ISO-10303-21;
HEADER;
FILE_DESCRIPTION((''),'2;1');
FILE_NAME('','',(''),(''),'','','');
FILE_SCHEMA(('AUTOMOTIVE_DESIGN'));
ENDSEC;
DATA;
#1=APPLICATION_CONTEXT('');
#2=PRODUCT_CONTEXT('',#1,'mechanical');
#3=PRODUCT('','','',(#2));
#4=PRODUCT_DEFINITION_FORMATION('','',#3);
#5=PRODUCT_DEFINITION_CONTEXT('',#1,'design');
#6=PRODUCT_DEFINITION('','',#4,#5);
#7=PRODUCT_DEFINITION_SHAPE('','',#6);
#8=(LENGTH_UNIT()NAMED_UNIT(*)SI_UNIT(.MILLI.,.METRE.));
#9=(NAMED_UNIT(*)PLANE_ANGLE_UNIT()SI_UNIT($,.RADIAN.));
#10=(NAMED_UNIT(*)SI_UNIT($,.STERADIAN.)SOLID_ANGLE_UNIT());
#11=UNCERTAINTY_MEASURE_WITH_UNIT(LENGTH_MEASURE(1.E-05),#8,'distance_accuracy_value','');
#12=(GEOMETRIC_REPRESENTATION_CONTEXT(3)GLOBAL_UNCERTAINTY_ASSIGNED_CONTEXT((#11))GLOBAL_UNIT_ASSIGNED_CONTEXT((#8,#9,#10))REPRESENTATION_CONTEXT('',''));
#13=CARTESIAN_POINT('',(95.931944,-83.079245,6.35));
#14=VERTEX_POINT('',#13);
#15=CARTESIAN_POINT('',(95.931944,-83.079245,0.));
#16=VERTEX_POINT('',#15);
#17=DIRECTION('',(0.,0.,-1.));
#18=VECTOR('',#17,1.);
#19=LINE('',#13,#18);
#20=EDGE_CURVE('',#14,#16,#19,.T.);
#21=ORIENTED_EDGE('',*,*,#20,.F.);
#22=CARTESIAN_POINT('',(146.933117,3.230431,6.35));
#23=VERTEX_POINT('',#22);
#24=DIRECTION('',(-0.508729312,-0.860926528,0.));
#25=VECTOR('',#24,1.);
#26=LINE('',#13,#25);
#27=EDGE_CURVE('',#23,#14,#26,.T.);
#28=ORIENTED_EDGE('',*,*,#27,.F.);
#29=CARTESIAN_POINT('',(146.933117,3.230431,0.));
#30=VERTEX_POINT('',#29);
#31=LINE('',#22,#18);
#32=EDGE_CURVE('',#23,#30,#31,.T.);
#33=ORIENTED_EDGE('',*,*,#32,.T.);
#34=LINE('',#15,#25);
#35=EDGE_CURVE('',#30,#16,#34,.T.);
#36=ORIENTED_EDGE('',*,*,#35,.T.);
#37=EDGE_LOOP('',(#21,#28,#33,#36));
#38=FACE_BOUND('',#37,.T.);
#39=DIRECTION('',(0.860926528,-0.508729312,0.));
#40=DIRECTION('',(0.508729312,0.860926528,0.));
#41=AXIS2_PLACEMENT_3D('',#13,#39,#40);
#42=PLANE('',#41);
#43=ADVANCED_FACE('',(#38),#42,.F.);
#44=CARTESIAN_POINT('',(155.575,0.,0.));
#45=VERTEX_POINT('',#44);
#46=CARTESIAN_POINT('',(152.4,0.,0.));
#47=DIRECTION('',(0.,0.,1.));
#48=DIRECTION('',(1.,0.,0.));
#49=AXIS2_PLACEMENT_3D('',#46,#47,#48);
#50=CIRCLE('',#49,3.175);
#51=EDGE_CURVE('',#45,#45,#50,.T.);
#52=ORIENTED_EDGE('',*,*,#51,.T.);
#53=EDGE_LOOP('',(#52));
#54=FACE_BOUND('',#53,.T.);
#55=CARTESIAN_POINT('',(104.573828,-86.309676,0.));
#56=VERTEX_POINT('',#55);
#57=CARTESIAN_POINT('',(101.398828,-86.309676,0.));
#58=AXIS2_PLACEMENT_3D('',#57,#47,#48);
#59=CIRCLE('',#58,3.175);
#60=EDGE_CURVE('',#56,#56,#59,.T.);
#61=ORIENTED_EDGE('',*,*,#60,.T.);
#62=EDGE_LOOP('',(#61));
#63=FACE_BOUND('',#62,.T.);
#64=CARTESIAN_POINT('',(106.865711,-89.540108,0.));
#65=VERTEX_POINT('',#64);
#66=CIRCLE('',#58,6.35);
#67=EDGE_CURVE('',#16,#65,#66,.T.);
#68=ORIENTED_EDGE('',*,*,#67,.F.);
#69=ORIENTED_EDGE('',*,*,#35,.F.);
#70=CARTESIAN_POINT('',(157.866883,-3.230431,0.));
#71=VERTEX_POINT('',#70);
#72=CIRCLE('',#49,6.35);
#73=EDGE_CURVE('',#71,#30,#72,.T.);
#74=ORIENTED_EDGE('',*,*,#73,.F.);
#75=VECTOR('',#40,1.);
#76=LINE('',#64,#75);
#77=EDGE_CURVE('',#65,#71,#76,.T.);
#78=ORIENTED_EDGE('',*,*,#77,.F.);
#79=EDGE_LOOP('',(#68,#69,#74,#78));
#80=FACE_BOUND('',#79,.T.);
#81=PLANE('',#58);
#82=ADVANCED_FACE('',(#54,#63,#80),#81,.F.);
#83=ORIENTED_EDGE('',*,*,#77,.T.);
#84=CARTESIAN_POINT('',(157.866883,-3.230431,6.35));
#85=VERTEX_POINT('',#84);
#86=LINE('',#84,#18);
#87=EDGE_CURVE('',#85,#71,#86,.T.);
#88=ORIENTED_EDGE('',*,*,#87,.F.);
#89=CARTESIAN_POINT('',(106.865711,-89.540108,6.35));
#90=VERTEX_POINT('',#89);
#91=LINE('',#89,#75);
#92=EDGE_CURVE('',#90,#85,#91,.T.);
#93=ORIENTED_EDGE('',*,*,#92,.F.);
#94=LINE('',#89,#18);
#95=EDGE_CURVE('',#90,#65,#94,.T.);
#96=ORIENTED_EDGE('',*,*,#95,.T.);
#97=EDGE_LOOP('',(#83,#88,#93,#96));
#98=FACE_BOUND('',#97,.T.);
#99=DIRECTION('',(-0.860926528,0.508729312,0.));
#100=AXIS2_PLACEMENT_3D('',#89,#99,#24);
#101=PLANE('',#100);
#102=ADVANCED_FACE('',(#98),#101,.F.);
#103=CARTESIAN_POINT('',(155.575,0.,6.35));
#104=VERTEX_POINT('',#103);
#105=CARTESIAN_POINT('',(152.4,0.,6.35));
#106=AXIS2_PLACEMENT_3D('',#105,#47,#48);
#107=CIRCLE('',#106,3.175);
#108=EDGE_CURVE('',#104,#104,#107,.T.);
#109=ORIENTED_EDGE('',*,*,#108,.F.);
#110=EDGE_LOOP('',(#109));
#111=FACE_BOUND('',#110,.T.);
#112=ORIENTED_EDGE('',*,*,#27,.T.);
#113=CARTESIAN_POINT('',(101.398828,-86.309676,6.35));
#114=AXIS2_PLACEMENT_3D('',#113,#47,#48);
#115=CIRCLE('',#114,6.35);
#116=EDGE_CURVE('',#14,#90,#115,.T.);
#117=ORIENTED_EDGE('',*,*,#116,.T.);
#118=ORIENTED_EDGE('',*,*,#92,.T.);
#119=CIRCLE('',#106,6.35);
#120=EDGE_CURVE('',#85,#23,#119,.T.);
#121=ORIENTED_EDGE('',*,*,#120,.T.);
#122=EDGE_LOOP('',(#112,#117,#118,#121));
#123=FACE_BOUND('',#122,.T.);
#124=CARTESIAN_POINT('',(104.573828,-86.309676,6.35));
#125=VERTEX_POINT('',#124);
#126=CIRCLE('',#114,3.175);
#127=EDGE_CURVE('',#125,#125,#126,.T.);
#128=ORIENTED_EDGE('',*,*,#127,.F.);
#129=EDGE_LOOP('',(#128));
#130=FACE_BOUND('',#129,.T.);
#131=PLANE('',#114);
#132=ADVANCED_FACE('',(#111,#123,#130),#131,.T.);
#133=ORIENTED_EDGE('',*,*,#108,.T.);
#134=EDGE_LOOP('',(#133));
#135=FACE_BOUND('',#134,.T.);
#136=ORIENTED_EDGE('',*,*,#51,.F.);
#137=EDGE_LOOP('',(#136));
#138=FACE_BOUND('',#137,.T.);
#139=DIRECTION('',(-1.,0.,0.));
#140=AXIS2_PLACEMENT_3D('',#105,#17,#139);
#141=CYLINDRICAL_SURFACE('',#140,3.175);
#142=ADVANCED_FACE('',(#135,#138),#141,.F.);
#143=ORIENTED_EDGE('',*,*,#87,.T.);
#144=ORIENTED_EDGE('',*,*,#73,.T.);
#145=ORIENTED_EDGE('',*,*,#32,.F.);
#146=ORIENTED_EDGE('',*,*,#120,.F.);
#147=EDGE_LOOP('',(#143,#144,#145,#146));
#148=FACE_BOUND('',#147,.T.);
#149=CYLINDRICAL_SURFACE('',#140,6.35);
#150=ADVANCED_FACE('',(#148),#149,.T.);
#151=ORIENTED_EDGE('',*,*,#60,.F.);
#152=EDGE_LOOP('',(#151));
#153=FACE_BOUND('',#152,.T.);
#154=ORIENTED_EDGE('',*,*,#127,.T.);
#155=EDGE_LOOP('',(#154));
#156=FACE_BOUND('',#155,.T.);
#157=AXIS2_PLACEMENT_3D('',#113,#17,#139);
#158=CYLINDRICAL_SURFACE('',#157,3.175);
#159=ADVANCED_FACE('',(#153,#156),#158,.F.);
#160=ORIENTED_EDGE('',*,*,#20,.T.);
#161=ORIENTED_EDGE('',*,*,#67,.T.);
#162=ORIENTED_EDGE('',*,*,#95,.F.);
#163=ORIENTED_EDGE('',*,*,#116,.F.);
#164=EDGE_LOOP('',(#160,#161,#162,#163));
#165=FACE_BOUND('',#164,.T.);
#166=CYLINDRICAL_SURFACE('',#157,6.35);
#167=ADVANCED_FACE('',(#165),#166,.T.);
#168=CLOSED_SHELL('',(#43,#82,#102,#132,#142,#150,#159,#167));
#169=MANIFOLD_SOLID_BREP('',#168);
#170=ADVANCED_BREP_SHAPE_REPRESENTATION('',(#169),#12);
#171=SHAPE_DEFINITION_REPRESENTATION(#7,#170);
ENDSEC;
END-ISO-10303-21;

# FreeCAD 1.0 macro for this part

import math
import FreeCAD as App
import Part
import Sketcher
Q = App.Units.Quantity

doc = App.newDocument("Part")
body = doc.addObject("PartDesign::Body", "Body")

# Sketch on XY plane
sketch1 = doc.addObject("Sketcher::SketchObject", "Sketch")
body.addObject(sketch1)
sketch1.AttachmentSupport = (doc.XY_Plane, [""])
sketch1.MapMode = "FlatFace"
sketch1.addGeometry(Part.LineSegment(App.Vector(146.9, 3.2, 0), App.Vector(95.9, -83.1, 0)), False)
sketch1.addGeometry(Part.ArcOfCircle(Part.Circle(App.Vector(101.4, -86.3, 0), App.Vector(0, 0, 1), 6.3), math.radians(149), math.radians(329)), False)
sketch1.addGeometry(Part.LineSegment(App.Vector(106.9, -89.5, 0), App.Vector(157.9, -3.2, 0)), False)
sketch1.addGeometry(Part.ArcOfCircle(Part.Circle(App.Vector(152.4, 0, 0), App.Vector(0, 0, 1), 6.3), math.radians(-31), math.radians(149)), False)
sketch1.addGeometry(Part.Circle(App.Vector(101.4, -86.3, 0), App.Vector(0, 0, 1), 3.2), False)
sketch1.addGeometry(Part.Circle(App.Vector(152.4, 0, 0), App.Vector(0, 0, 1), 3.2), False)
sketch1.addConstraint(Sketcher.Constraint("Tangent", 0, 2, 1, 1))
sketch1.addConstraint(Sketcher.Constraint("Tangent", 1, 2, 2, 1))
sketch1.addConstraint(Sketcher.Constraint("Tangent", 2, 2, 3, 1))
sketch1.addConstraint(Sketcher.Constraint("Tangent", 3, 2, 0, 1))
sketch1.addConstraint(Sketcher.Constraint("Coincident", 4, 3, 1, 3))
sketch1.addConstraint(Sketcher.Constraint("Coincident", 5, 3, 3, 3))
sketch1.addConstraint(Sketcher.Constraint("Equal", 1, 3))
sketch1.addConstraint(Sketcher.Constraint("Equal", 4, 5))
sketch1.addConstraint(Sketcher.Constraint("PointOnObject", 3, 3, -1))
sketch1.addConstraint(Sketcher.Constraint("Diameter", 4, Q("0.25 in")))
sketch1.addConstraint(Sketcher.Constraint("Radius", 1, Q("0.25 in")))
sketch1.addConstraint(Sketcher.Constraint("DistanceX", -1, 1, 3, 3, Q("6 in")))
sketch1.addConstraint(Sketcher.Constraint("Distance", 0, 100.252081))
sketch1.addConstraint(Sketcher.Constraint("DistanceX", -1, 1, 1, 2, 106.865711))
pad1 = doc.addObject("PartDesign::Pad", "Pad")
body.addObject(pad1)
pad1.Profile = sketch1
pad1.Length = Q("0.25 in")

doc.recompute()
